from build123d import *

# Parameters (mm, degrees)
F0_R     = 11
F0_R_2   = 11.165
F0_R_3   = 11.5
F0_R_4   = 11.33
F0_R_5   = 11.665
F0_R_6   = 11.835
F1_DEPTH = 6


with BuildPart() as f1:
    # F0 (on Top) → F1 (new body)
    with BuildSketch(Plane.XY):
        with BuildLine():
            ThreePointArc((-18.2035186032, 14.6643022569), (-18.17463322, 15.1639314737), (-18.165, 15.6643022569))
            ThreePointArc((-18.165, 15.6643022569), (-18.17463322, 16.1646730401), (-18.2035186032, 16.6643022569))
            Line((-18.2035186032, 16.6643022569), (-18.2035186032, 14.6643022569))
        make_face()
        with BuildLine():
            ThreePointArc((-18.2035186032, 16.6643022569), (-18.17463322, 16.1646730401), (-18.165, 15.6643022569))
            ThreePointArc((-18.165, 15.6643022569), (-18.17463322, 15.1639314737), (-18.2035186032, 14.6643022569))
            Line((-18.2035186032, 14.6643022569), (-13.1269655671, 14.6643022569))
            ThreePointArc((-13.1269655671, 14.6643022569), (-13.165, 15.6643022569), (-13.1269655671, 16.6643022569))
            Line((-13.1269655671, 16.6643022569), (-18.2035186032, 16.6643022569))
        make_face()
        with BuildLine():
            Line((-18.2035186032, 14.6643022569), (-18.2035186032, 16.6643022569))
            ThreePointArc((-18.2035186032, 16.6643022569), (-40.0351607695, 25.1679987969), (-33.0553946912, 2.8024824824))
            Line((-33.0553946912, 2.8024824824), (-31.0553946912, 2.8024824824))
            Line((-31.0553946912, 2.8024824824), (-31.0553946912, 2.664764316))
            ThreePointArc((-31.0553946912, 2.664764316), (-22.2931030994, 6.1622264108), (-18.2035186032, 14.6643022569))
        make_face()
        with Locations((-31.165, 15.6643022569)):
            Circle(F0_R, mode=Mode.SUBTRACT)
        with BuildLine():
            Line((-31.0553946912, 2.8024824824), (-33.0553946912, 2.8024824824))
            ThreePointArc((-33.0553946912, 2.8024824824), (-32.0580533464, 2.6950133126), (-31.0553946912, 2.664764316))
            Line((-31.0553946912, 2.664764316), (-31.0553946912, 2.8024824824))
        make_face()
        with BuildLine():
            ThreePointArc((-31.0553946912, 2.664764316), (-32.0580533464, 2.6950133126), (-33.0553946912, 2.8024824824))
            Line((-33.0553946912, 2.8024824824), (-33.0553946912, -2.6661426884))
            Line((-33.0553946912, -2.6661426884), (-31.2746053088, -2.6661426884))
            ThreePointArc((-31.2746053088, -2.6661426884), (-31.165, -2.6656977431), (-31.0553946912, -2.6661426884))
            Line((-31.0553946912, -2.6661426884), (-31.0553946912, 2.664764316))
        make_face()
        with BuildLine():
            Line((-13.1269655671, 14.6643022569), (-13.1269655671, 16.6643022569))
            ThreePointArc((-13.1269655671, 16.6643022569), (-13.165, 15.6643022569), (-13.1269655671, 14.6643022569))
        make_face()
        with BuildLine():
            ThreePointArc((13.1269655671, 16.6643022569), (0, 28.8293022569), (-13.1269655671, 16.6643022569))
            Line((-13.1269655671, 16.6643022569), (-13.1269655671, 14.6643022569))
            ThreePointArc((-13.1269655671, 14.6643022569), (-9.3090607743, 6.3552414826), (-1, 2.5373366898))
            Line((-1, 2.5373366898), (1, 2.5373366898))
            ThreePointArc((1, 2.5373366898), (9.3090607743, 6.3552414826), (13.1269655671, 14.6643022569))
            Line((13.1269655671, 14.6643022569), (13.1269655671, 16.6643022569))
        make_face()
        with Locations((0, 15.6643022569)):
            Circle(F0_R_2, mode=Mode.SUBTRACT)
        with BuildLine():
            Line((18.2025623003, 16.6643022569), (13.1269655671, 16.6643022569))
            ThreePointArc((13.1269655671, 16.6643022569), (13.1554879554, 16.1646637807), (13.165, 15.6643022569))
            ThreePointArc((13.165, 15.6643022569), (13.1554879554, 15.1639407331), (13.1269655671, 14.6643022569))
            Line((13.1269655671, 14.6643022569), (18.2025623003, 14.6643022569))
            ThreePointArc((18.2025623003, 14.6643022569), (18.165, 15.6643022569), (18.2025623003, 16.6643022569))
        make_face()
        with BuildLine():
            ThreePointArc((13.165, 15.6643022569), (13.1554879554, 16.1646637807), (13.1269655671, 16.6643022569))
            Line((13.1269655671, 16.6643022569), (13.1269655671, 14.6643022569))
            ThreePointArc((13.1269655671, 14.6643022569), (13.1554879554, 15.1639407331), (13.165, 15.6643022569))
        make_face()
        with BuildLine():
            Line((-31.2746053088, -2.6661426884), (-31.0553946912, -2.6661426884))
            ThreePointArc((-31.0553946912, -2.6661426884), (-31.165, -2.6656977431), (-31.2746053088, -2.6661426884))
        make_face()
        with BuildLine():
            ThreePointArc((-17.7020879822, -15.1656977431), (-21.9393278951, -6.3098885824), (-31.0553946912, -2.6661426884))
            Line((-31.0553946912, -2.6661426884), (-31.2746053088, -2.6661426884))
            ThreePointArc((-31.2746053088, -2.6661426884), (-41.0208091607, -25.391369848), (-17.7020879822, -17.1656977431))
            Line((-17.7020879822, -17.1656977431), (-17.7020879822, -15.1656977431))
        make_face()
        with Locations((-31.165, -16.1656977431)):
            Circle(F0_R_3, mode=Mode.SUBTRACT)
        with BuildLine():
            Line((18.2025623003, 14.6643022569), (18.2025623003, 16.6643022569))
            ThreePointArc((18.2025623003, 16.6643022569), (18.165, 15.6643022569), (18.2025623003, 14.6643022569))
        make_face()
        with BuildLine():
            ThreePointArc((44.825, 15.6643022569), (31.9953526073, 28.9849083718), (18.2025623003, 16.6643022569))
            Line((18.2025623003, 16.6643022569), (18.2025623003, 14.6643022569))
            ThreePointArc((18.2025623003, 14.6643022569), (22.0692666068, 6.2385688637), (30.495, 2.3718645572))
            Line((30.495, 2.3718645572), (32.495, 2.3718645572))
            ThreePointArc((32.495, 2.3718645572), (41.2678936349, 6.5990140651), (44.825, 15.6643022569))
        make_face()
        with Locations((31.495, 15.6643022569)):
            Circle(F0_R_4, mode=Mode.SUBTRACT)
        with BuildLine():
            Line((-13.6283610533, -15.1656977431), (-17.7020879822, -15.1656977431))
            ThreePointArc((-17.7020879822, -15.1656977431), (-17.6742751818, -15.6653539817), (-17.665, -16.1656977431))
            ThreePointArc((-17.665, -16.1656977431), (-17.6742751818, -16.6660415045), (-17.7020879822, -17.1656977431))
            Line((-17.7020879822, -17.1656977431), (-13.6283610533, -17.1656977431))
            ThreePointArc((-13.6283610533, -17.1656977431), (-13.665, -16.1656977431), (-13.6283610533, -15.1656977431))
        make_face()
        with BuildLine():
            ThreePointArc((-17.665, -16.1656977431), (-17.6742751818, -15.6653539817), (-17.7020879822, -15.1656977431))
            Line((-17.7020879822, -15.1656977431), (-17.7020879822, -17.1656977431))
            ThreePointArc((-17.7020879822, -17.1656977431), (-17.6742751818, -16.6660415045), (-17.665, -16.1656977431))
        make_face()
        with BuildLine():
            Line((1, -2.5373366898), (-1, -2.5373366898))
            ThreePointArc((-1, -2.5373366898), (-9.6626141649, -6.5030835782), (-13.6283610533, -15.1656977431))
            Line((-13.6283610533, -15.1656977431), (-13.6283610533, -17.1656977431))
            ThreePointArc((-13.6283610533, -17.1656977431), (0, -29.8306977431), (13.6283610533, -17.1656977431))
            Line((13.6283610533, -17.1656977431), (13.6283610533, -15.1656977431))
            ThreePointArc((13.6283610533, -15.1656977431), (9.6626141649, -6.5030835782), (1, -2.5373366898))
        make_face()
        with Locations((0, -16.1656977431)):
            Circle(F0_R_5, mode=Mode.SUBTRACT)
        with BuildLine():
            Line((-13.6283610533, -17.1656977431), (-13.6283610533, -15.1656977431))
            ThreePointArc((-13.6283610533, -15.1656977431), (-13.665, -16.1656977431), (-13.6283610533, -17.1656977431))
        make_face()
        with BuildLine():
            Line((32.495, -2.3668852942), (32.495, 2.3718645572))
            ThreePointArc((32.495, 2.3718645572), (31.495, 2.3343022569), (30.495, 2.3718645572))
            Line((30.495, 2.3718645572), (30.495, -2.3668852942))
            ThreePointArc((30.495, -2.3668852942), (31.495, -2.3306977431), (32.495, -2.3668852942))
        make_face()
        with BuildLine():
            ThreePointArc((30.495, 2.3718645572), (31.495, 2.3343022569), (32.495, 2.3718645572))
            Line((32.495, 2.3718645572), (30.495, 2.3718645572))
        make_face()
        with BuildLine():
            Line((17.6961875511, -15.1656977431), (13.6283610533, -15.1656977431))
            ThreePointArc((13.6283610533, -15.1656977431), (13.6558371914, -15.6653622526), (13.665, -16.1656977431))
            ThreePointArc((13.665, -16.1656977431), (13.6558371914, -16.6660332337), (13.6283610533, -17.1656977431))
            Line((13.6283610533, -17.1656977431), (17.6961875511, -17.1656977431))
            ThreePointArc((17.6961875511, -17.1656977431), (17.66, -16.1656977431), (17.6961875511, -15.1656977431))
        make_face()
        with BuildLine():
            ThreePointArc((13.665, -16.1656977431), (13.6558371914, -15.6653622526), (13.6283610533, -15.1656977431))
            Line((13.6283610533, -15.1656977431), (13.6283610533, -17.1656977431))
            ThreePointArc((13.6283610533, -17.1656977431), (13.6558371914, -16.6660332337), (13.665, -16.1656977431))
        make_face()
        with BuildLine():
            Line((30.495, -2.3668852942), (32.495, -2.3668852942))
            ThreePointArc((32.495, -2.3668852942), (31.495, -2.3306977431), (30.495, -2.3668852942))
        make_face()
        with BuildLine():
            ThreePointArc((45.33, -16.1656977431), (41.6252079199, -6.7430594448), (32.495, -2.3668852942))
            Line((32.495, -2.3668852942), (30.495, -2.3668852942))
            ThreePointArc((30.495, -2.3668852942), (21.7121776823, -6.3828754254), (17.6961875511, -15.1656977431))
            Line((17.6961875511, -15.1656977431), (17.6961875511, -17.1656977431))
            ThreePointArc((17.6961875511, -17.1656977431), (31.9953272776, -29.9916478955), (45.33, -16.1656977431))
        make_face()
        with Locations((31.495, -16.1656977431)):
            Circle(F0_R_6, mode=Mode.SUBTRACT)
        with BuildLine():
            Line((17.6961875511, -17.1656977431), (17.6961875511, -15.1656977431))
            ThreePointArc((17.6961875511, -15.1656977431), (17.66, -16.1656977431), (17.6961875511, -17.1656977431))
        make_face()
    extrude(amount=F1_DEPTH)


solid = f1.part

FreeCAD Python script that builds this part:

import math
import FreeCAD as App
import Part
import Sketcher
from FreeCAD import Vector
Q = App.Units.Quantity

doc = App.newDocument("Part")
params = doc.addObject("Spreadsheet::Sheet", "Params")
for row, (alias, value) in enumerate([
    ("sketch1_diameter", "23 mm"),
    ("sketch1_diameter2", "22 mm"),
    ("sketch1_radius", "13 mm"),
    ("sketch1_radius2", "13.5 mm"),
    ("sketch1_diameter3", "23.33 mm"),
    ("pad1_length", "6 mm"),
], start=1):
    params.set(f"A{row}", alias)
    params.set(f"B{row}", "=" + value)
    params.setAlias(f"B{row}", alias)

body = doc.addObject("PartDesign::Body", "Body")

sketch1 = doc.addObject("Sketcher::SketchObject", "Sketch")
body.addObject(sketch1)
sketch1.AttachmentSupport = (doc.XY_Plane, [""])
sketch1.MapMode = "FlatFace"
sketch1.addGeometry([
    Part.ArcOfCircle(Part.Circle(Vector(0, -16.165698, 0), Vector(0, 0, 1), 13.665), math.radians(-175.803363), math.radians(-4.196637)),
    Part.LineSegment(Vector(13.628361, -17.165698, 0), Vector(17.696188, -17.165698, 0)),
    Part.ArcOfCircle(Part.Circle(Vector(31.495, -16.165698, 0), Vector(0, 0, 1), 13.835), math.radians(-175.855021), math.radians(0)),
    Part.ArcOfCircle(Part.Circle(Vector(31.495, -16.165698, 0), Vector(0, 0, 1), 13.835), math.radians(0), math.radians(85.855021)),
    Part.LineSegment(Vector(32.495, -2.366885, 0), Vector(32.495, 2.371865, 0)),
    Part.ArcOfCircle(Part.Circle(Vector(31.495, 15.664302, 0), Vector(0, 0, 1), 13.33), math.radians(-85.6977), math.radians(0)),
    Part.ArcOfCircle(Part.Circle(Vector(31.495, 15.664302, 0), Vector(0, 0, 1), 13.33), math.radians(0), math.radians(175.6977)),
    Part.LineSegment(Vector(18.202562, 16.664302, 0), Vector(13.126966, 16.664302, 0)),
    Part.ArcOfCircle(Part.Circle(Vector(0, 15.664302, 0), Vector(0, 0, 1), 13.165), math.radians(4.356325), math.radians(175.643675)),
    Part.LineSegment(Vector(-13.126966, 16.664302, 0), Vector(-18.203519, 16.664302, 0)),
    Part.ArcOfCircle(Part.Circle(Vector(-31.165, 15.664302, 0), Vector(0, 0, 1), 13), math.radians(4.411726), math.radians(261.63869)),
    Part.LineSegment(Vector(-33.055395, 2.802482, 0), Vector(-33.055395, -2.666143, 0)),
    Part.LineSegment(Vector(-33.055395, -2.666143, 0), Vector(-31.274605, -2.666143, 0)),
    Part.ArcOfCircle(Part.Circle(Vector(-31.165, -16.165698, 0), Vector(0, 0, 1), 13.5), math.radians(90.465184), math.radians(355.751977)),
    Part.LineSegment(Vector(-17.702088, -17.165698, 0), Vector(-13.628361, -17.165698, 0)),
    Part.Circle(Vector(-31.165, -16.165698, 0), Vector(0, 0, 1), 11.5),
    Part.Circle(Vector(0, -16.165698, 0), Vector(0, 0, 1), 11.665),
    Part.Circle(Vector(31.495, -16.165698, 0), Vector(0, 0, 1), 11.835),
    Part.ArcOfCircle(Part.Circle(Vector(31.495, -16.165698, 0), Vector(0, 0, 1), 13.835), math.radians(94.144979), math.radians(175.855021)),
    Part.LineSegment(Vector(17.696188, -15.165698, 0), Vector(13.628361, -15.165698, 0)),
    Part.ArcOfCircle(Part.Circle(Vector(0, -16.165698, 0), Vector(0, 0, 1), 13.665), math.radians(4.196637), math.radians(85.803363)),
    Part.LineSegment(Vector(1, -2.537337, 0), Vector(-1, -2.537337, 0)),
    Part.ArcOfCircle(Part.Circle(Vector(0, -16.165698, 0), Vector(0, 0, 1), 13.665), math.radians(94.196637), math.radians(175.803363)),
    Part.LineSegment(Vector(-13.628361, -15.165698, 0), Vector(-17.702088, -15.165698, 0)),
    Part.ArcOfCircle(Part.Circle(Vector(-31.165, -16.165698, 0), Vector(0, 0, 1), 13.5), math.radians(4.248023), math.radians(89.534816)),
    Part.LineSegment(Vector(-31.055395, -2.666143, 0), Vector(-31.055395, 2.664764, 0)),
    Part.ArcOfCircle(Part.Circle(Vector(-31.165, 15.664302, 0), Vector(0, 0, 1), 13), math.radians(-89.516923), math.radians(-4.411726)),
    Part.LineSegment(Vector(-18.203519, 14.664302, 0), Vector(-13.126966, 14.664302, 0)),
    Part.ArcOfCircle(Part.Circle(Vector(0, 15.664302, 0), Vector(0, 0, 1), 13.165), math.radians(-175.643675), math.radians(-94.356325)),
    Part.LineSegment(Vector(-1, 2.537337, 0), Vector(1, 2.537337, 0)),
    Part.ArcOfCircle(Part.Circle(Vector(0, 15.664302, 0), Vector(0, 0, 1), 13.165), math.radians(-85.643675), math.radians(-4.356325)),
    Part.LineSegment(Vector(13.126966, 14.664302, 0), Vector(18.202562, 14.664302, 0)),
    Part.ArcOfCircle(Part.Circle(Vector(31.495, 15.664302, 0), Vector(0, 0, 1), 13.33), math.radians(-175.6977), math.radians(-94.3023)),
    Part.LineSegment(Vector(30.495, 2.371865, 0), Vector(30.495, -2.366885, 0)),
    Part.Circle(Vector(-31.165, 15.664302, 0), Vector(0, 0, 1), 11),
    Part.Circle(Vector(0, 15.664302, 0), Vector(0, 0, 1), 11.165),
    Part.Circle(Vector(31.495, 15.664302, 0), Vector(0, 0, 1), 11.33),
], False)
sketch1.addConstraint([
    Sketcher.Constraint("Coincident", 0, 2, 1, 1),
    Sketcher.Constraint("Coincident", 1, 2, 2, 1),
    Sketcher.Constraint("Tangent", 2, 2, 3, 1),
    Sketcher.Constraint("Coincident", 3, 2, 4, 1),
    Sketcher.Constraint("Coincident", 4, 2, 5, 1),
    Sketcher.Constraint("Tangent", 5, 2, 6, 1),
    Sketcher.Constraint("Coincident", 6, 2, 7, 1),
    Sketcher.Constraint("Coincident", 7, 2, 8, 1),
    Sketcher.Constraint("Coincident", 8, 2, 9, 1),
    Sketcher.Constraint("Coincident", 9, 2, 10, 1),
    Sketcher.Constraint("Coincident", 10, 2, 11, 1),
    Sketcher.Constraint("Coincident", 11, 2, 12, 1),
    Sketcher.Constraint("Coincident", 12, 2, 13, 1),
    Sketcher.Constraint("Coincident", 13, 2, 14, 1),
    Sketcher.Constraint("Coincident", 14, 2, 0, 1),
    Sketcher.Constraint("Coincident", 18, 2, 19, 1),
    Sketcher.Constraint("Coincident", 19, 2, 20, 1),
    Sketcher.Constraint("Coincident", 20, 2, 21, 1),
    Sketcher.Constraint("Coincident", 21, 2, 22, 1),
    Sketcher.Constraint("Coincident", 22, 2, 23, 1),
    Sketcher.Constraint("Coincident", 23, 2, 24, 1),
    Sketcher.Constraint("Coincident", 24, 2, 25, 1),
    Sketcher.Constraint("Coincident", 25, 2, 26, 1),
    Sketcher.Constraint("Coincident", 26, 2, 27, 1),
    Sketcher.Constraint("Coincident", 27, 2, 28, 1),
    Sketcher.Constraint("Coincident", 28, 2, 29, 1),
    Sketcher.Constraint("Coincident", 29, 2, 30, 1),
    Sketcher.Constraint("Coincident", 30, 2, 31, 1),
    Sketcher.Constraint("Coincident", 31, 2, 32, 1),
    Sketcher.Constraint("Coincident", 32, 2, 33, 1),
    Sketcher.Constraint("Coincident", 33, 2, 18, 1),
    Sketcher.Constraint("Horizontal", 1),
    Sketcher.Constraint("Vertical", 4),
    Sketcher.Constraint("Horizontal", 7),
    Sketcher.Constraint("Horizontal", 9),
    Sketcher.Constraint("Vertical", 11),
    Sketcher.Constraint("Horizontal", 12),
    Sketcher.Constraint("Horizontal", 14),
    Sketcher.Constraint("Horizontal", 19),
    Sketcher.Constraint("Horizontal", 21),
    Sketcher.Constraint("Horizontal", 23),
    Sketcher.Constraint("Vertical", 25),
    Sketcher.Constraint("Horizontal", 27),
    Sketcher.Constraint("Horizontal", 29),
    Sketcher.Constraint("Horizontal", 31),
    Sketcher.Constraint("Vertical", 33),
    Sketcher.Constraint("Coincident", 15, 3, 13, 3),
    Sketcher.Constraint("Coincident", 16, 3, 0, 3),
    Sketcher.Constraint("Coincident", 17, 3, 2, 3),
    Sketcher.Constraint("Coincident", 18, 3, 2, 3),
    Sketcher.Constraint("Coincident", 20, 3, 0, 3),
    Sketcher.Constraint("Coincident", 22, 3, 0, 3),
    Sketcher.Constraint("Coincident", 24, 3, 13, 3),
    Sketcher.Constraint("Coincident", 26, 3, 10, 3),
    Sketcher.Constraint("Coincident", 28, 3, 8, 3),
    Sketcher.Constraint("Coincident", 30, 3, 8, 3),
    Sketcher.Constraint("Coincident", 32, 3, 5, 3),
    Sketcher.Constraint("Coincident", 34, 3, 10, 3),
    Sketcher.Constraint("Coincident", 35, 3, 8, 3),
    Sketcher.Constraint("Coincident", 36, 3, 5, 3),
    Sketcher.Constraint("Equal", 2, 3),
    Sketcher.Constraint("Equal", 5, 6),
    Sketcher.Constraint("Equal", 3, 18),
    Sketcher.Constraint("Equal", 0, 20),
    Sketcher.Constraint("Equal", 20, 22),
    Sketcher.Constraint("Equal", 13, 24),
    Sketcher.Constraint("Equal", 10, 26),
    Sketcher.Constraint("Equal", 8, 28),
    Sketcher.Constraint("Equal", 28, 30),
    Sketcher.Constraint("Equal", 6, 32),
    Sketcher.Constraint("Symmetric", 20, 2, 28, 2, -1, 1),
    Sketcher.Constraint("Symmetric", 7, 2, 8, 2, -2),
    Sketcher.Constraint("Symmetric", 0, 2, 14, 2, -2),
    Sketcher.Constraint("Horizontal", 0, 3, 2, 3),
    Sketcher.Constraint("Horizontal", 6, 3, 8, 3),
    Sketcher.Constraint("Horizontal", 8, 3, 10, 3),
    Sketcher.Constraint("Horizontal", 3, 3, 13, 3),
    Sketcher.Constraint("Horizontal", 24, 3, 2, 2),
    Sketcher.Constraint("Horizontal", 36, 3, 5, 2),
    Sketcher.Constraint("Horizontal", 19, 2, 22, 2),
    Sketcher.Constraint("Horizontal", 12, 2, 24, 2),
    Sketcher.Constraint("Horizontal", 27, 2, 30, 2),
    Sketcher.Constraint("Horizontal", 4, 2, 32, 2),
    Sketcher.Constraint("Horizontal", 3, 2, 33, 2),
    Sketcher.Constraint("Vertical", 10, 3, 13, 3),
    Sketcher.Constraint("Vertical", 1, 2, 18, 2),
    Sketcher.Constraint("Vertical", 9, 2, 26, 2),
    Sketcher.Constraint("Diameter", 15, Q("23 mm")),
    Sketcher.Constraint("Diameter", 34, Q("22 mm")),
    Sketcher.Constraint("Radius", 10, Q("13 mm")),
    Sketcher.Constraint("Radius", 13, Q("13.5 mm")),
    Sketcher.Constraint("Diameter", 16, Q("23.33 mm")),
    Sketcher.Constraint("Diameter", 17, Q("23.67 mm")),
    Sketcher.Constraint("Diameter", 35, Q("22.33 mm")),
    Sketcher.Constraint("Diameter", 36, Q("22.66 mm")),
    Sketcher.Constraint("DistanceX", 21, 2, 21, 1, Q("2 mm")),
    Sketcher.Constraint("Radius", 5, Q("13.33 mm")),
    Sketcher.Constraint("Radius", 0, Q("13.665 mm")),
    Sketcher.Constraint("Radius", 2, Q("13.835 mm")),
    Sketcher.Constraint("Radius", 8, Q("13.165 mm")),
    Sketcher.Constraint("DistanceY", 0, 2, 0, 3, Q("1 mm")),
    Sketcher.Constraint("DistanceX", 2, 3, 3, 2, Q("1 mm")),
    Sketcher.Constraint("DistanceY", 5, 3, 6, 2, Q("1 mm")),
    Sketcher.Constraint("DistanceX", 11, 2, 24, 2, Q("2 mm")),
    Sketcher.Constraint("DistanceX", -1, 1, 2, 2, Q("45.33 mm")),
    Sketcher.Constraint("DistanceY", 2, 3, 5, 3, Q("31.83 mm")),
    Sketcher.Constraint("DistanceX", 10, 3, 5, 3, Q("62.66 mm")),
    Sketcher.Constraint("DistanceX", 12, 1, 12, 2, Q("1.780789 mm")),
])
sketch1.setExpression("Constraints[87]", "Params.sketch1_diameter")
sketch1.setExpression("Constraints[88]", "Params.sketch1_diameter2")
sketch1.setExpression("Constraints[89]", "Params.sketch1_radius")
sketch1.setExpression("Constraints[90]", "Params.sketch1_radius2")
sketch1.setExpression("Constraints[91]", "Params.sketch1_diameter3")
pad1 = doc.addObject("PartDesign::Pad", "Pad")
body.addObject(pad1)
pad1.Profile = sketch1
pad1.setExpression("Length", "Params.pad1_length")

doc.recompute()
